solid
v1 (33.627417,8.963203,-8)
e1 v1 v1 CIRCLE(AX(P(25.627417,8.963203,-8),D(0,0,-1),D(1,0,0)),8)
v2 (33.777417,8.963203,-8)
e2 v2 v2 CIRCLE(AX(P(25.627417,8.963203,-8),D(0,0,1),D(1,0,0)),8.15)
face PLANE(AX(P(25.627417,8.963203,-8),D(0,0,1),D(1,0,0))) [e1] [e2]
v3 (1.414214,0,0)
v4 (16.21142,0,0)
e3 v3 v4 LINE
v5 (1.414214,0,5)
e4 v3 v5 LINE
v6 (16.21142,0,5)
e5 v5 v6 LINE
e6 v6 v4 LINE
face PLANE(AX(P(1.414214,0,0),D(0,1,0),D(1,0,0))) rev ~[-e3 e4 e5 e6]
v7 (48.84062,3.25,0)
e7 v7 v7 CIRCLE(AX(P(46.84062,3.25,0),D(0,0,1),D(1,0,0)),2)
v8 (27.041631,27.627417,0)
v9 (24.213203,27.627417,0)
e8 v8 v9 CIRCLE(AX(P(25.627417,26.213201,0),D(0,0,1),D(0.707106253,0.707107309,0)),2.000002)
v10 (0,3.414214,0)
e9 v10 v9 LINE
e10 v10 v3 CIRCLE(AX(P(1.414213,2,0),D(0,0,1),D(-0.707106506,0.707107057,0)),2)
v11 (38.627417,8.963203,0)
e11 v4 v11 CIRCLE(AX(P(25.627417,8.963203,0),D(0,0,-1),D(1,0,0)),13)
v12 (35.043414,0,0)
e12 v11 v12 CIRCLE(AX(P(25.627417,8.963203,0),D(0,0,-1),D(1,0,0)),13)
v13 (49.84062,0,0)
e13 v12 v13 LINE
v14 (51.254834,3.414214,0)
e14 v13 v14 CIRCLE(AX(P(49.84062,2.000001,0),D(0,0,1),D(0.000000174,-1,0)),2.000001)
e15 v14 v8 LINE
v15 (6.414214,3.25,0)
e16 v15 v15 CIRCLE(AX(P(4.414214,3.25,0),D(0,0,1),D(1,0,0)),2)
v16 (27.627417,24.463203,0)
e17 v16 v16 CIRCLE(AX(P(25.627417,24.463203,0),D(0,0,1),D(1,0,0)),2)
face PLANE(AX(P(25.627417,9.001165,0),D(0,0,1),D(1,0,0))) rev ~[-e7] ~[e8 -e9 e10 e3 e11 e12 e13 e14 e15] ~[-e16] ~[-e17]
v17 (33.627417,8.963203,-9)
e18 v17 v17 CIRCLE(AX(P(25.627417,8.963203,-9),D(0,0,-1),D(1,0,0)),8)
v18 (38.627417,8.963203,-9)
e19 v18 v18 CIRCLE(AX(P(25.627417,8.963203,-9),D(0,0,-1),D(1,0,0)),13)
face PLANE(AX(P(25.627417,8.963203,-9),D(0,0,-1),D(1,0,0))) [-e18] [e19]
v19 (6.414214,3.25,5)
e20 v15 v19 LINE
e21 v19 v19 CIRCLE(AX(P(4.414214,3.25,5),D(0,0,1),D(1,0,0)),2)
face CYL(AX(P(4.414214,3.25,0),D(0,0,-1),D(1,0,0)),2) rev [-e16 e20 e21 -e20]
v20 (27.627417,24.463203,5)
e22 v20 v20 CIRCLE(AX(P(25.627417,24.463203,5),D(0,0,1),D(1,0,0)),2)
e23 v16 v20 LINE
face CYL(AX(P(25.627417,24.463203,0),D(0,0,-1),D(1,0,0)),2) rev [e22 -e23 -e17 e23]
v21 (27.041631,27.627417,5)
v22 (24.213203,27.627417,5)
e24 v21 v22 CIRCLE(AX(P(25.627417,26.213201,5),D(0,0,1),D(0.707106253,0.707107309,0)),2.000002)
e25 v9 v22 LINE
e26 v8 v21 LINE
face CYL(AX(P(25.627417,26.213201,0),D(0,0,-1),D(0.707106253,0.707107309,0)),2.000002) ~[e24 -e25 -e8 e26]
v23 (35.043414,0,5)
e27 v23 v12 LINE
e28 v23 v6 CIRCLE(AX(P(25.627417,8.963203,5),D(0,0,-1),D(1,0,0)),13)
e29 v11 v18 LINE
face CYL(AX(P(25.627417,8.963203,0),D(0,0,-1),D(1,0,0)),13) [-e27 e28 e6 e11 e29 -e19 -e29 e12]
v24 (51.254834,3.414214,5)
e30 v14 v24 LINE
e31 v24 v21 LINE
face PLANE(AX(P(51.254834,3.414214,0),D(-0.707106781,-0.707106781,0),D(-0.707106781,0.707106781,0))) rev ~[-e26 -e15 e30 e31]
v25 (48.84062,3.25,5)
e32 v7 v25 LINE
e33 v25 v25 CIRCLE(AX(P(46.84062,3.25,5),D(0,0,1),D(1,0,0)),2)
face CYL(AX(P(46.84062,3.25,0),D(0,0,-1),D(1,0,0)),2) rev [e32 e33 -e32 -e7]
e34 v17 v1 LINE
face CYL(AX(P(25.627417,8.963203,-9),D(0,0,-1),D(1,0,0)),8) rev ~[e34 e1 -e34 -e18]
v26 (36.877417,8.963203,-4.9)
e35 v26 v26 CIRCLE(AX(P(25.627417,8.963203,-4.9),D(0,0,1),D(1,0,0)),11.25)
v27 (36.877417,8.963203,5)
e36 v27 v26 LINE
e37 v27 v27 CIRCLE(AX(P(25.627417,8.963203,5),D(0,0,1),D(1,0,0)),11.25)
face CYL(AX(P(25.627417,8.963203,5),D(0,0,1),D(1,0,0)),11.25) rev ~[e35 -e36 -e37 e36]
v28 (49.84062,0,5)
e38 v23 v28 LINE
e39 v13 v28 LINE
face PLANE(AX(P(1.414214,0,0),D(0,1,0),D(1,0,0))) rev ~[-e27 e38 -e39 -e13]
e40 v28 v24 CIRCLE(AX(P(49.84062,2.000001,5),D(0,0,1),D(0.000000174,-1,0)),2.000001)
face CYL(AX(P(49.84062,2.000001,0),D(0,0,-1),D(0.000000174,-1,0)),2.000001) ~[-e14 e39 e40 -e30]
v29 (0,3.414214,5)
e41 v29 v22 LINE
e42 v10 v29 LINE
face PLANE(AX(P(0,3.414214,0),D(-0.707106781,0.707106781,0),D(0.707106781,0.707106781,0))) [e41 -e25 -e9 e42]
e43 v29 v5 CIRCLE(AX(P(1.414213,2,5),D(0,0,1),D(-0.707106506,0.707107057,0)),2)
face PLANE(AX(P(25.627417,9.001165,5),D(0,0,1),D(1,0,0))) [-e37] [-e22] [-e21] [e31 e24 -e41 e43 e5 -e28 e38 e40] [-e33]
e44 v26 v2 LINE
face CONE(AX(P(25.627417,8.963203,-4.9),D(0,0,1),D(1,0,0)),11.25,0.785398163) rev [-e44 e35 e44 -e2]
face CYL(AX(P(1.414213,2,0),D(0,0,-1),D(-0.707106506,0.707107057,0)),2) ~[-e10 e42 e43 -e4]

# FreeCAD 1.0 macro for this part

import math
import FreeCAD as App
import Part
import Sketcher

V = App.Vector
Q = App.Units.Quantity


def edges_at(feature, points):
    """Names of the edges that pass closest to the given points."""
    edges = feature.Shape.Edges
    near = lambda p: min(range(len(edges)), key=lambda i: edges[i].distToShape(Part.Vertex(*p))[0])
    return sorted({f"Edge{near(p) + 1}" for p in points})


def add_polygon(sketch, points):
    """Adds a closed chain of lines whose ends are joined by coincident constraints."""
    first, n = sketch.GeometryCount, len(points)
    for a, b in zip(points, points[1:] + points[:1]):
        sketch.addGeometry(Part.LineSegment(App.Vector(*a, 0), App.Vector(*b, 0)), False)
    for i in range(n):
        sketch.addConstraint(Sketcher.Constraint("Coincident", first + i, 2, first + (i + 1) % n, 1))

doc = App.newDocument("Part")
body = doc.addObject("PartDesign::Body", "Body")

# Sketch on XY plane
sketch1 = body.newObject("Sketcher::SketchObject", "Sketch")
sketch1.AttachmentSupport = (doc.getObject("XY_Plane"), [""])
sketch1.MapMode = "FlatFace"
sketch1.addGeometry([
    Part.LineSegment(V(1.414214, 0, 0), V(49.84062, 0, 0)),  # 0
    Part.ArcOfCircle(Part.Circle(V(49.84062, 2.000001, 0), V(0, 0, 1), 2.000001), math.radians(-89.99999), math.radians(44.999983)),  # 1
    Part.LineSegment(V(51.254834, 3.414214, 0), V(27.041631, 27.627417, 0)),  # 2
    Part.ArcOfCircle(Part.Circle(V(25.627417, 26.213201, 0), V(0, 0, 1), 2.000002), math.radians(45.000043), math.radians(134.999957)),  # 3
    Part.LineSegment(V(24.213203, 27.627417, 0), V(0, 3.414214, 0)),  # 4
    Part.ArcOfCircle(Part.Circle(V(1.414213, 2, 0), V(0, 0, 1), 2), math.radians(134.999978), math.radians(270.00003)),  # 5
    Part.Circle(V(4.414214, 3.25, 0), V(0, 0, 1), 2),  # 6
    Part.Circle(V(46.84062, 3.25, 0), V(0, 0, 1), 2),  # 7
    Part.Circle(V(25.627417, 24.463203, 0), V(0, 0, 1), 2),  # 8
], False)
sketch1.addConstraint([
    Sketcher.Constraint("Tangent", 0, 2, 1, 1),
    Sketcher.Constraint("Tangent", 1, 2, 2, 1),
    Sketcher.Constraint("Tangent", 2, 2, 3, 1),
    Sketcher.Constraint("Tangent", 3, 2, 4, 1),
    Sketcher.Constraint("Tangent", 4, 2, 5, 1),
    Sketcher.Constraint("Tangent", 5, 2, 0, 1),
    Sketcher.Constraint("Horizontal", 0),
    Sketcher.Constraint("Equal", 1, 3),
    Sketcher.Constraint("Equal", 1, 5),
    Sketcher.Constraint("Equal", 5, 6),
    Sketcher.Constraint("Equal", 6, 7),
    Sketcher.Constraint("Equal", 7, 8),
    Sketcher.Constraint("PointOnObject", 0, 2, -1),
    Sketcher.Constraint("PointOnObject", 4, 2, -2),
    Sketcher.Constraint("Perpendicular", 2, 4),
    Sketcher.Constraint("Horizontal", 6, 3, 7, 3),
    Sketcher.Constraint("Horizontal", 2, 2, 3, 2),
    Sketcher.Constraint("Vertical", 3, 3, 8, 3),
    Sketcher.Constraint("Diameter", 6, Q("4 mm")),
    Sketcher.Constraint("DistanceX", 5, 3, 6, 3, Q("3.000001 mm")),
    Sketcher.Constraint("DistanceX", 7, 3, 1, 3, Q("3 mm")),
    Sketcher.Constraint("DistanceY", -1, 1, 6, 3, Q("3.25 mm")),
    Sketcher.Constraint("DistanceY", -1, 1, 3, 3, Q("26.213201 mm")),
    Sketcher.Constraint("DistanceY", 1, 2, 8, 3, Q("21.048989 mm")),
])
pad1 = body.newObject("PartDesign::Pad", "Pad")
pad1.Profile = sketch1
pad1.Length = 5

# Sketch on XY plane
sketch2 = body.newObject("Sketcher::SketchObject", "Sketch001")
sketch2.AttachmentSupport = (doc.getObject("XY_Plane"), [""])
sketch2.MapMode = "FlatFace"
sketch2.addGeometry(Part.Circle(V(25.627417, 8.963203, 0), V(0, 0, 1), 13), False)
sketch2.addConstraint([
    Sketcher.Constraint("Diameter", 0, Q("26 mm")),
    Sketcher.Constraint("DistanceX", -1, 1, 0, 3, Q("25.627417 mm")),
    Sketcher.Constraint("DistanceY", -1, 1, 0, 3, Q("8.963203 mm")),
])
pad2 = body.newObject("PartDesign::Pad", "Pad001")
pad2.Profile = sketch2
pad2.Length = 18
pad2.Midplane = True

# Sketch on XY plane
sketch3 = body.newObject("Sketcher::SketchObject", "Sketch002")
sketch3.AttachmentSupport = (doc.getObject("XY_Plane"), [""])
sketch3.MapMode = "FlatFace"
sketch3.AttachmentOffset = App.Placement(V(0, 0, -9), App.Rotation())
sketch3.addGeometry(Part.Circle(V(25.627417, 8.963203, 0), V(0, 0, 1), 8), False)
sketch3.addConstraint([
    Sketcher.Constraint("Diameter", 0, Q("16 mm")),
    Sketcher.Constraint("DistanceX", -1, 1, 0, 3, Q("25.627417 mm")),
    Sketcher.Constraint("DistanceY", -1, 1, 0, 3, Q("8.963203 mm")),
])
pocket1 = body.newObject("PartDesign::Pocket", "Pocket")
pocket1.Profile = sketch3
pocket1.Type = "ThroughAll"
pocket1.Reversed = True

# Sketch on an angled plane
sketch4 = body.newObject("Sketcher::SketchObject", "Sketch003")
sketch4.Placement = App.Placement(V(27.334524, 27.334524, 0), App.Rotation(V(-0.707106781, 0.707106781, 0), V(0, 0, 0.999999999), V(0.707106781, 0.707106781, 0), "ZXY"))
add_polygon(sketch4, [(-33.828426, 10), (-33.828426, 5), (3.414214, 5), (3.414214, 10)])  # lines 0-3
sketch4.addConstraint([
    Sketcher.Constraint("Vertical", 0),
    Sketcher.Constraint("Horizontal", 1),
    Sketcher.Constraint("Vertical", 2),
    Sketcher.Constraint("Horizontal", 3),
    Sketcher.Constraint("DistanceY", 0, 2, 0, 1, Q("5 mm")),
    Sketcher.Constraint("DistanceY", -1, 1, 0, 2, Q("5 mm")),
    Sketcher.Constraint("DistanceX", 1, 1, 1, 2, Q("37.242641 mm")),
    Sketcher.Constraint("DistanceX", 0, 2, -1, 1, Q("33.828426 mm")),
])
pocket2 = body.newObject("PartDesign::Pocket", "Pocket001")
pocket2.Profile = sketch4
pocket2.Type = "ThroughAll"

# Sketch on XY plane
sketch5 = body.newObject("Sketcher::SketchObject", "Sketch004")
sketch5.AttachmentSupport = (doc.getObject("XY_Plane"), [""])
sketch5.MapMode = "FlatFace"
sketch5.AttachmentOffset = App.Placement(V(0, 0, 5), App.Rotation())
sketch5.addGeometry(Part.Circle(V(25.627417, 8.963203, 0), V(0, 0, 1), 11.25), False)
sketch5.addConstraint([
    Sketcher.Constraint("Diameter", 0, Q("22.5 mm")),
    Sketcher.Constraint("DistanceX", -1, 1, 0, 3, Q("25.627417 mm")),
    Sketcher.Constraint("DistanceY", -1, 1, 0, 3, Q("8.963203 mm")),
])
pocket3 = body.newObject("PartDesign::Pocket", "Pocket002")
pocket3.Profile = sketch5
pocket3.Length = 13
doc.recompute()

chamfer = body.newObject("PartDesign::Chamfer", "Chamfer")
chamfer.Base = (pocket3, edges_at(pocket3, [(14.377, 8.963, -8)]))
chamfer.Size = 3.1

doc.recompute()
